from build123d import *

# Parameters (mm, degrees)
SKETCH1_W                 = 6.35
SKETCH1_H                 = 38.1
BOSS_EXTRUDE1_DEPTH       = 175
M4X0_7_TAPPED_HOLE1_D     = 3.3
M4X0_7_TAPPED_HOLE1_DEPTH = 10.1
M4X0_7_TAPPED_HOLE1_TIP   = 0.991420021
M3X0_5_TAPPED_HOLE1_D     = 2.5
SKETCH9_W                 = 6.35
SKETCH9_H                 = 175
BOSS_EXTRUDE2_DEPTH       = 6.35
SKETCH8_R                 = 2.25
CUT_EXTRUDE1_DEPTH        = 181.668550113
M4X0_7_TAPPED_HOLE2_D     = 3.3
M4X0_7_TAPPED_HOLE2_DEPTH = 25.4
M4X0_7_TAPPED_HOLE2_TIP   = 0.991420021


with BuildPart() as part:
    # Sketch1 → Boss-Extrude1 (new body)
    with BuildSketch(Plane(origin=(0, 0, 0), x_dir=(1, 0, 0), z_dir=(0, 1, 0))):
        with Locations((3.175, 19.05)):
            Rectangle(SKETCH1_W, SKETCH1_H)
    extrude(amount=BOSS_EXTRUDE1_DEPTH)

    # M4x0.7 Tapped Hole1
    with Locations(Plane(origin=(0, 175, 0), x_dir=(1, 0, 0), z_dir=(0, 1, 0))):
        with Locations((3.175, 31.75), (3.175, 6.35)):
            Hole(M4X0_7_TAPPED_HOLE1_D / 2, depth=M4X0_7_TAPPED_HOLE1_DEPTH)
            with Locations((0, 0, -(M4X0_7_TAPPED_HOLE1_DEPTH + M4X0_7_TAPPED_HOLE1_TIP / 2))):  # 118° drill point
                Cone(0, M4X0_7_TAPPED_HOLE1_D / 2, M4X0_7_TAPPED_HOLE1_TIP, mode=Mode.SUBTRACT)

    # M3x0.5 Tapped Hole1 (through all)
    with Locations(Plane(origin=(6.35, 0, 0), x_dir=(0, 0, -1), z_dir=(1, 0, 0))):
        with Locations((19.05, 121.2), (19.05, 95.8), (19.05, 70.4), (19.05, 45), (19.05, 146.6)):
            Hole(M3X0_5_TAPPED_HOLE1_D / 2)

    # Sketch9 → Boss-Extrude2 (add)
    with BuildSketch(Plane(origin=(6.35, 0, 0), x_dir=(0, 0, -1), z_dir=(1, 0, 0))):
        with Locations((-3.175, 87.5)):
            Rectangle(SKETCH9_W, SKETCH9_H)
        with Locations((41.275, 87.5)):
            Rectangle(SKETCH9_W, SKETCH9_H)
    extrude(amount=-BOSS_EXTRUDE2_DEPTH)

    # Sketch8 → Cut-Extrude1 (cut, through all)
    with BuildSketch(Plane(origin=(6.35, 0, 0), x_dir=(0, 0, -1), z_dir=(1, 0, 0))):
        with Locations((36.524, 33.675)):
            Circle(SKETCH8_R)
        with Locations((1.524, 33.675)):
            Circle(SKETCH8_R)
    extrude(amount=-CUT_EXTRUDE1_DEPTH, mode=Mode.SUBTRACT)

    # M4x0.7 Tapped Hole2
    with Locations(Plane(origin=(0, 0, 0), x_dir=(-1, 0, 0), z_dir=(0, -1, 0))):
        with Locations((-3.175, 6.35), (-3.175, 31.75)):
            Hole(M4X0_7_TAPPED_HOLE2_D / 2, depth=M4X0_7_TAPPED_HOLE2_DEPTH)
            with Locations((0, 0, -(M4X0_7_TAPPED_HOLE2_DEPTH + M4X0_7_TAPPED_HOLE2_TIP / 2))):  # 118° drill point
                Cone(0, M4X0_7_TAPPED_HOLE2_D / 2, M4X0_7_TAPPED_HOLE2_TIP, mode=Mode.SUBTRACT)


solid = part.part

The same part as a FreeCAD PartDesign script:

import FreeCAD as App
import Part
import Sketcher

V = App.Vector
Q = App.Units.Quantity

doc = App.newDocument("Part")
params = doc.addObject("Spreadsheet::Sheet", "Params")
for row, (alias, value) in enumerate([
    ("sketch1_height", "38.1 mm"),
    ("sketch1_width", "6.35 mm"),
    ("pad1_length", "175 mm"),
    ("sketch2_diameter", "3.3 mm"),
    ("hole_diameter", "3.3 mm"),
    ("hole_depth", "10.1 mm"),
    ("sketch3_diameter", "2.5 mm"),
    ("hole2_diameter", "2.5 mm"),
    ("sketch4_width", "175 mm"),
    ("sketch4_height", "6.35 mm"),
    ("pad2_length", "6.35 mm"),
    ("sketch5_diameter", "4.5 mm"),
    ("sketch6_diameter", "3.3 mm"),
    ("hole3_diameter", "3.3 mm"),
    ("hole3_depth", "25.4 mm"),
], start=1):
    params.set(f"A{row}", alias)
    params.set(f"B{row}", "=" + value)
    params.setAlias(f"B{row}", alias)

body = doc.addObject("PartDesign::Body", "Body")

sketch1 = doc.addObject("Sketcher::SketchObject", "Sketch")
body.addObject(sketch1)
sketch1.AttachmentSupport = (doc.XZ_Plane, [""])
sketch1.MapMode = "FlatFace"
sketch1.addGeometry(Part.LineSegment(V(0, -38, 0), V(0, 0, 0)), False)
sketch1.addGeometry(Part.LineSegment(V(0, 0, 0), V(6, 0, 0)), False)
sketch1.addGeometry(Part.LineSegment(V(6, 0, 0), V(6, -38, 0)), False)
sketch1.addGeometry(Part.LineSegment(V(6, -38, 0), V(0, -38, 0)), False)
sketch1.addConstraint(Sketcher.Constraint("Coincident", 0, 2, 1, 1))
sketch1.addConstraint(Sketcher.Constraint("Coincident", 1, 2, 2, 1))
sketch1.addConstraint(Sketcher.Constraint("Coincident", 2, 2, 3, 1))
sketch1.addConstraint(Sketcher.Constraint("Coincident", 3, 2, 0, 1))
sketch1.addConstraint(Sketcher.Constraint("Vertical", 0))
sketch1.addConstraint(Sketcher.Constraint("Horizontal", 1))
sketch1.addConstraint(Sketcher.Constraint("Vertical", 2))
sketch1.addConstraint(Sketcher.Constraint("Horizontal", 3))
sketch1.addConstraint(Sketcher.Constraint("Coincident", 0, 2, -1, 1))
sketch1.addConstraint(Sketcher.Constraint("DistanceY", 0, 1, 0, 2, Q("38.1 mm")))
sketch1.addConstraint(Sketcher.Constraint("DistanceX", 1, 1, 1, 2, Q("6.35 mm")))
sketch1.setExpression("Constraints[9]", "Params.sketch1_height")
sketch1.setExpression("Constraints[10]", "Params.sketch1_width")
pad1 = doc.addObject("PartDesign::Pad", "Pad")
body.addObject(pad1)
pad1.Profile = sketch1
pad1.setExpression("Length", "Params.pad1_length")
pad1.Reversed = True

sketch2 = doc.addObject("Sketcher::SketchObject", "Sketch001")
body.addObject(sketch2)
sketch2.AttachmentSupport = (doc.XZ_Plane, [""])
sketch2.MapMode = "FlatFace"
sketch2.AttachmentOffset = App.Placement(V(0, 0, -175), App.Rotation())
sketch2.addGeometry(Part.Circle(V(3.2, -31.8, 0), V(0, 0, 1), 1.6), False)
sketch2.addGeometry(Part.Circle(V(3.2, -6.3, 0), V(0, 0, 1), 1.6), False)
sketch2.addConstraint(Sketcher.Constraint("Equal", 0, 1))
sketch2.addConstraint(Sketcher.Constraint("Vertical", 0, 3, 1, 3))
sketch2.addConstraint(Sketcher.Constraint("Diameter", 0, Q("3.3 mm")))
sketch2.addConstraint(Sketcher.Constraint("DistanceY", 0, 3, 1, 3, Q("25.4 mm")))
sketch2.addConstraint(Sketcher.Constraint("DistanceY", 0, 3, -1, 1, Q("31.75 mm")))
sketch2.addConstraint(Sketcher.Constraint("DistanceX", -1, 1, 0, 3, Q("3.175 mm")))
sketch2.setExpression("Constraints[2]", "Params.sketch2_diameter")
doc.recompute()
hole = doc.addObject("PartDesign::Hole", "Hole")
body.addObject(hole)
hole.Profile = sketch2
hole.ThreadType = "None"
hole.setExpression("Diameter", "Params.hole_diameter")
hole.DepthType = "Dimension"
hole.setExpression("Depth", "Params.hole_depth")
hole.DrillPoint = "Angled"
hole.DrillPointAngle = 118
hole.Reversed = True

sketch3 = doc.addObject("Sketcher::SketchObject", "Sketch002")
body.addObject(sketch3)
sketch3.AttachmentSupport = (doc.YZ_Plane, [""])
sketch3.MapMode = "FlatFace"
sketch3.AttachmentOffset = App.Placement(V(0, 0, 6.35), App.Rotation())
sketch3.addGeometry(Part.Circle(V(121.2, -19.1, 0), V(0, 0, 1), 1.2), False)
sketch3.addGeometry(Part.Circle(V(95.8, -19.1, 0), V(0, 0, 1), 1.2), False)
sketch3.addGeometry(Part.Circle(V(70.4, -19.1, 0), V(0, 0, 1), 1.2), False)
sketch3.addGeometry(Part.Circle(V(45, -19.1, 0), V(0, 0, 1), 1.2), False)
sketch3.addGeometry(Part.Circle(V(146.6, -19.1, 0), V(0, 0, 1), 1.2), False)
sketch3.addConstraint(Sketcher.Constraint("Equal", 0, 1))
sketch3.addConstraint(Sketcher.Constraint("Equal", 1, 2))
sketch3.addConstraint(Sketcher.Constraint("Equal", 2, 3))
sketch3.addConstraint(Sketcher.Constraint("Equal", 3, 4))
sketch3.addConstraint(Sketcher.Constraint("Horizontal", 0, 3, 1, 3))
sketch3.addConstraint(Sketcher.Constraint("Horizontal", 1, 3, 2, 3))
sketch3.addConstraint(Sketcher.Constraint("Horizontal", 2, 3, 3, 3))
sketch3.addConstraint(Sketcher.Constraint("Horizontal", 3, 3, 4, 3))
sketch3.addConstraint(Sketcher.Constraint("Diameter", 0, Q("2.5 mm")))
sketch3.addConstraint(Sketcher.Constraint("DistanceX", -1, 1, 3, 3, Q("45 mm")))
sketch3.addConstraint(Sketcher.Constraint("DistanceX", -1, 1, 0, 3, Q("121.2 mm")))
sketch3.addConstraint(Sketcher.Constraint("DistanceX", -1, 1, 1, 3, Q("95.8 mm")))
sketch3.addConstraint(Sketcher.Constraint("DistanceX", -1, 1, 2, 3, Q("70.4 mm")))
sketch3.addConstraint(Sketcher.Constraint("DistanceX", -1, 1, 4, 3, Q("146.6 mm")))
sketch3.addConstraint(Sketcher.Constraint("DistanceY", 0, 3, -1, 1, Q("19.05 mm")))
sketch3.setExpression("Constraints[8]", "Params.sketch3_diameter")
doc.recompute()
hole2 = doc.addObject("PartDesign::Hole", "Hole001")
body.addObject(hole2)
hole2.Profile = sketch3
hole2.ThreadType = "None"
hole2.setExpression("Diameter", "Params.hole2_diameter")
hole2.DepthType = "ThroughAll"

sketch4 = doc.addObject("Sketcher::SketchObject", "Sketch003")
body.addObject(sketch4)
sketch4.AttachmentSupport = (doc.YZ_Plane, [""])
sketch4.MapMode = "FlatFace"
sketch4.AttachmentOffset = App.Placement(V(0, 0, 6.35), App.Rotation())
sketch4.addGeometry(Part.LineSegment(V(175, 6, 0), V(0, 6, 0)), False)
sketch4.addGeometry(Part.LineSegment(V(0, 6, 0), V(0, 0, 0)), False)
sketch4.addGeometry(Part.LineSegment(V(0, 0, 0), V(175, 0, 0)), False)
sketch4.addGeometry(Part.LineSegment(V(175, 0, 0), V(175, 6, 0)), False)
sketch4.addGeometry(Part.LineSegment(V(175, -38, 0), V(0, -38, 0)), False)
sketch4.addGeometry(Part.LineSegment(V(0, -38, 0), V(0, -44, 0)), False)
sketch4.addGeometry(Part.LineSegment(V(0, -44, 0), V(175, -44, 0)), False)
sketch4.addGeometry(Part.LineSegment(V(175, -44, 0), V(175, -38, 0)), False)
sketch4.addConstraint(Sketcher.Constraint("Coincident", 0, 2, 1, 1))
sketch4.addConstraint(Sketcher.Constraint("Coincident", 1, 2, 2, 1))
sketch4.addConstraint(Sketcher.Constraint("Coincident", 2, 2, 3, 1))
sketch4.addConstraint(Sketcher.Constraint("Coincident", 3, 2, 0, 1))
sketch4.addConstraint(Sketcher.Constraint("Coincident", 4, 2, 5, 1))
sketch4.addConstraint(Sketcher.Constraint("Coincident", 5, 2, 6, 1))
sketch4.addConstraint(Sketcher.Constraint("Coincident", 6, 2, 7, 1))
sketch4.addConstraint(Sketcher.Constraint("Coincident", 7, 2, 4, 1))
sketch4.addConstraint(Sketcher.Constraint("Horizontal", 0))
sketch4.addConstraint(Sketcher.Constraint("Vertical", 1))
sketch4.addConstraint(Sketcher.Constraint("Horizontal", 2))
sketch4.addConstraint(Sketcher.Constraint("Vertical", 3))
sketch4.addConstraint(Sketcher.Constraint("Horizontal", 4))
sketch4.addConstraint(Sketcher.Constraint("Vertical", 5))
sketch4.addConstraint(Sketcher.Constraint("Horizontal", 6))
sketch4.addConstraint(Sketcher.Constraint("Vertical", 7))
sketch4.addConstraint(Sketcher.Constraint("Coincident", 1, 2, -1, 1))
sketch4.addConstraint(Sketcher.Constraint("PointOnObject", 4, 2, -2))
sketch4.addConstraint(Sketcher.Constraint("Vertical", 3, 2, 6, 2))
sketch4.addConstraint(Sketcher.Constraint("Equal", 3, 5))
sketch4.addConstraint(Sketcher.Constraint("DistanceX", 0, 2, 0, 1, Q("175 mm")))
sketch4.addConstraint(Sketcher.Constraint("DistanceY", 1, 2, 1, 1, Q("6.35 mm")))
sketch4.addConstraint(Sketcher.Constraint("DistanceY", 4, 2, -1, 1, Q("38.1 mm")))
sketch4.setExpression("Constraints[20]", "Params.sketch4_width")
sketch4.setExpression("Constraints[21]", "Params.sketch4_height")
pad2 = doc.addObject("PartDesign::Pad", "Pad001")
body.addObject(pad2)
pad2.Profile = sketch4
pad2.setExpression("Length", "Params.pad2_length")
pad2.Reversed = True

sketch5 = doc.addObject("Sketcher::SketchObject", "Sketch004")
body.addObject(sketch5)
sketch5.AttachmentSupport = (doc.YZ_Plane, [""])
sketch5.MapMode = "FlatFace"
sketch5.AttachmentOffset = App.Placement(V(0, 0, 6.35), App.Rotation())
sketch5.addGeometry(Part.Circle(V(33.7, -36.5, 0), V(0, 0, 1), 2.2), False)
sketch5.addGeometry(Part.Circle(V(33.7, -1.5, 0), V(0, 0, 1), 2.2), False)
sketch5.addConstraint(Sketcher.Constraint("Equal", 0, 1))
sketch5.addConstraint(Sketcher.Constraint("Vertical", 0, 3, 1, 3))
sketch5.addConstraint(Sketcher.Constraint("Diameter", 0, Q("4.5 mm")))
sketch5.addConstraint(Sketcher.Constraint("DistanceY", 0, 3, 1, 3, Q("35 mm")))
sketch5.addConstraint(Sketcher.Constraint("DistanceX", -1, 1, 0, 3, Q("33.675 mm")))
sketch5.addConstraint(Sketcher.Constraint("DistanceY", 0, 3, -1, 1, Q("36.524 mm")))
sketch5.setExpression("Constraints[2]", "Params.sketch5_diameter")
pocket1 = doc.addObject("PartDesign::Pocket", "Pocket")
body.addObject(pocket1)
pocket1.Profile = sketch5
pocket1.Type = "ThroughAll"

sketch6 = doc.addObject("Sketcher::SketchObject", "Sketch005")
body.addObject(sketch6)
sketch6.AttachmentSupport = (doc.XZ_Plane, [""])
sketch6.MapMode = "FlatFace"
sketch6.addGeometry(Part.Circle(V(3.2, -6.3, 0), V(0, 0, 1), 1.6), False)
sketch6.addGeometry(Part.Circle(V(3.2, -31.8, 0), V(0, 0, 1), 1.6), False)
sketch6.addConstraint(Sketcher.Constraint("Equal", 0, 1))
sketch6.addConstraint(Sketcher.Constraint("Vertical", 0, 3, 1, 3))
sketch6.addConstraint(Sketcher.Constraint("Diameter", 0, Q("3.3 mm")))
sketch6.addConstraint(Sketcher.Constraint("DistanceY", 1, 3, 0, 3, Q("25.4 mm")))
sketch6.addConstraint(Sketcher.Constraint("DistanceY", 0, 3, -1, 1, Q("6.35 mm")))
sketch6.addConstraint(Sketcher.Constraint("DistanceX", -1, 1, 0, 3, Q("3.175 mm")))
sketch6.setExpression("Constraints[2]", "Params.sketch6_diameter")
doc.recompute()
hole3 = doc.addObject("PartDesign::Hole", "Hole002")
body.addObject(hole3)
hole3.Profile = sketch6
hole3.ThreadType = "None"
hole3.setExpression("Diameter", "Params.hole3_diameter")
hole3.DepthType = "Dimension"
hole3.setExpression("Depth", "Params.hole3_depth")
hole3.DrillPoint = "Angled"
hole3.DrillPointAngle = 118

doc.recompute()
